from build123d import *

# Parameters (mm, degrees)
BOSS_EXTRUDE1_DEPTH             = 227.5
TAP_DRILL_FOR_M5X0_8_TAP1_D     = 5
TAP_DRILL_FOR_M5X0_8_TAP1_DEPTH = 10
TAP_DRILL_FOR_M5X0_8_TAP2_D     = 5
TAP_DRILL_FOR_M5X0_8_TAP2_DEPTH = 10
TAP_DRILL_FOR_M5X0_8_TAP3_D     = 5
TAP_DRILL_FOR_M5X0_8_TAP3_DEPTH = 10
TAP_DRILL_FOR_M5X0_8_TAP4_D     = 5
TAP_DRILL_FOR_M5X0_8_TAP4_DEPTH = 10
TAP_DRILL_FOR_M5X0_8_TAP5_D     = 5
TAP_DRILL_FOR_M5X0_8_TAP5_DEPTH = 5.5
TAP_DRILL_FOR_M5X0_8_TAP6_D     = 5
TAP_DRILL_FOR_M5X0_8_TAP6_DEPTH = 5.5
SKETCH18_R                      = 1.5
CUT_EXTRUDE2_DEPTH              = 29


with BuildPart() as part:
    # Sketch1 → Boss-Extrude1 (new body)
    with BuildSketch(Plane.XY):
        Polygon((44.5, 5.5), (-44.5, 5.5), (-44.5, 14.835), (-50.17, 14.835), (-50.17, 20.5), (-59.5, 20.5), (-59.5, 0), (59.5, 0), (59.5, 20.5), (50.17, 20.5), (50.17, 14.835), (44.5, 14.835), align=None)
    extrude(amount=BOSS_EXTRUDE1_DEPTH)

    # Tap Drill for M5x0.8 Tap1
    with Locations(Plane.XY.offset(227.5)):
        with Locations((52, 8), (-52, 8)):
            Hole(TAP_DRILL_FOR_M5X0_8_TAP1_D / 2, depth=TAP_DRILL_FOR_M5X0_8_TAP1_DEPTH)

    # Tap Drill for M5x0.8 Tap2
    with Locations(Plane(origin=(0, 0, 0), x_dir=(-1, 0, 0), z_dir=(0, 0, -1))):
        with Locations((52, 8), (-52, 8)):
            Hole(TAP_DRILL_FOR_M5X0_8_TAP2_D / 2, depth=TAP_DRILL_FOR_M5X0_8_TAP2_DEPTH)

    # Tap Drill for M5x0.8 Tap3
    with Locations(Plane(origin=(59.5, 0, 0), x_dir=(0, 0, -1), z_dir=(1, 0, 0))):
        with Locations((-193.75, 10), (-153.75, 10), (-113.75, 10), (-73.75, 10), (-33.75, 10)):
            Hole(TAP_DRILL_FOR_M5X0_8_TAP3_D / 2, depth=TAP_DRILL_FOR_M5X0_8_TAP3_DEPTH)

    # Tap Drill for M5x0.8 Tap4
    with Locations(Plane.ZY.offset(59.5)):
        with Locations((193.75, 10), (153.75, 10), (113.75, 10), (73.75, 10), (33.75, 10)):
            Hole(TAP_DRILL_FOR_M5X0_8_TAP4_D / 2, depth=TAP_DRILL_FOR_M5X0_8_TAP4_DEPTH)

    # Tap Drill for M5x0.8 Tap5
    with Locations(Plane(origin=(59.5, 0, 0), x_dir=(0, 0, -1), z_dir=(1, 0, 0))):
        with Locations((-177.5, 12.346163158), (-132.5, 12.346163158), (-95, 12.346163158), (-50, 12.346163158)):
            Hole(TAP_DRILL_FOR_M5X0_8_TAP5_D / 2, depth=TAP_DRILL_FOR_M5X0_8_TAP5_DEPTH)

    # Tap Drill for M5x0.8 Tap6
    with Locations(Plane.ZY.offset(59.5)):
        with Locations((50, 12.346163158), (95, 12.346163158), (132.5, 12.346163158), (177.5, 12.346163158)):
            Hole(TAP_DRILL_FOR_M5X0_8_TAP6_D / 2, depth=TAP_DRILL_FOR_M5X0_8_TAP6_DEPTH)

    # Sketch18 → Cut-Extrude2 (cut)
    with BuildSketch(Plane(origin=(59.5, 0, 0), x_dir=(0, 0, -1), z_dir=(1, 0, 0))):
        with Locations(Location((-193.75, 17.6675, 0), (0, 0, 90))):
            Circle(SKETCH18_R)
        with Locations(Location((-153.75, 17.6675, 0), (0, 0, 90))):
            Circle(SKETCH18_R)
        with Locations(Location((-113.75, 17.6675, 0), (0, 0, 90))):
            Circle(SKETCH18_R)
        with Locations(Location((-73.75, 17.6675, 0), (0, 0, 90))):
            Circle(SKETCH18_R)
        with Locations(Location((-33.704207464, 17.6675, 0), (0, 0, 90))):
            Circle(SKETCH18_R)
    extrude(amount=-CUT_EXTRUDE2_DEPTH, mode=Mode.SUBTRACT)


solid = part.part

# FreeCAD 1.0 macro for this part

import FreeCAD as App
import Part
import Sketcher

V = App.Vector


def add_polygon(sketch, points):
    """Adds a closed chain of lines whose ends are joined by coincident constraints."""
    first, n = sketch.GeometryCount, len(points)
    for a, b in zip(points, points[1:] + points[:1]):
        sketch.addGeometry(Part.LineSegment(App.Vector(*a, 0), App.Vector(*b, 0)), False)
    for i in range(n):
        sketch.addConstraint(Sketcher.Constraint("Coincident", first + i, 2, first + (i + 1) % n, 1))

doc = App.newDocument("Part")
body = doc.addObject("PartDesign::Body", "Body")

# Sketch on XY plane
sketch1 = doc.addObject("Sketcher::SketchObject", "Sketch")
body.addObject(sketch1)
sketch1.AttachmentSupport = (doc.XY_Plane, [""])
sketch1.MapMode = "FlatFace"
add_polygon(sketch1, [(44, 6), (-44, 6), (-44, 15), (-50, 15), (-50, 20), (-60, 20), (-60, 0), (60, 0), (60, 20), (50, 20), (50, 15), (44, 15)])  # lines 0-11
sketch1.addConstraint(Sketcher.Constraint("Horizontal", 0))
sketch1.addConstraint(Sketcher.Constraint("Vertical", 1))
sketch1.addConstraint(Sketcher.Constraint("Horizontal", 2))
sketch1.addConstraint(Sketcher.Constraint("Vertical", 3))
sketch1.addConstraint(Sketcher.Constraint("Horizontal", 4))
sketch1.addConstraint(Sketcher.Constraint("Vertical", 5))
sketch1.addConstraint(Sketcher.Constraint("Horizontal", 6))
sketch1.addConstraint(Sketcher.Constraint("Vertical", 7))
sketch1.addConstraint(Sketcher.Constraint("Horizontal", 8))
sketch1.addConstraint(Sketcher.Constraint("Vertical", 9))
sketch1.addConstraint(Sketcher.Constraint("Horizontal", 10))
sketch1.addConstraint(Sketcher.Constraint("Vertical", 11))
sketch1.addConstraint(Sketcher.Constraint("Symmetric", 5, 2, 6, 2, -1, 1))
sketch1.addConstraint(Sketcher.Constraint("Symmetric", 3, 2, 8, 2, -2))
sketch1.addConstraint(Sketcher.Constraint("Symmetric", 1, 2, 10, 2, -2))
sketch1.addConstraint(Sketcher.Constraint("DistanceX", 0, 2, 0, 1, 89.0))
sketch1.addConstraint(Sketcher.Constraint("DistanceX", 6, 1, 6, 2, 119.0))
sketch1.addConstraint(Sketcher.Constraint("DistanceY", 5, 2, 5, 1, 20.5))
sketch1.addConstraint(Sketcher.Constraint("DistanceY", 0, 2, 3, 2, 15.0))
sketch1.addConstraint(Sketcher.Constraint("DistanceX", 2, 2, 2, 1, 5.67))
sketch1.addConstraint(Sketcher.Constraint("DistanceY", 1, 1, 1, 2, 9.335))
pad1 = doc.addObject("PartDesign::Pad", "Pad")
body.addObject(pad1)
pad1.Profile = sketch1
pad1.Length = 227.5

# Sketch on XY plane
sketch2 = doc.addObject("Sketcher::SketchObject", "Sketch001")
body.addObject(sketch2)
sketch2.AttachmentSupport = (doc.XY_Plane, [""])
sketch2.MapMode = "FlatFace"
sketch2.AttachmentOffset = App.Placement(V(0, 0, 227.5), App.Rotation())
sketch2.addGeometry(Part.Circle(V(52, 8, 0), V(0, 0, 1), 2.5), False)
sketch2.addGeometry(Part.Circle(V(-52, 8, 0), V(0, 0, 1), 2.5), False)
sketch2.addConstraint(Sketcher.Constraint("Equal", 0, 1))
sketch2.addConstraint(Sketcher.Constraint("Symmetric", 0, 3, 1, 3, -2))
sketch2.addConstraint(Sketcher.Constraint("Diameter", 0, 5.0))
sketch2.addConstraint(Sketcher.Constraint("DistanceX", -1, 1, 0, 3, 52.0))
sketch2.addConstraint(Sketcher.Constraint("DistanceY", -1, 1, 0, 3, 8.0))
doc.recompute()
hole = doc.addObject("PartDesign::Hole", "Hole")
body.addObject(hole)
hole.Profile = sketch2
hole.ThreadType = "None"
hole.Diameter = 5
hole.DepthType = "Dimension"
hole.Depth = 10
hole.DrillPoint = "Flat"

# Sketch on XY plane
sketch3 = doc.addObject("Sketcher::SketchObject", "Sketch002")
body.addObject(sketch3)
sketch3.AttachmentSupport = (doc.XY_Plane, [""])
sketch3.MapMode = "FlatFace"
sketch3.addGeometry(Part.Circle(V(-52, 8, 0), V(0, 0, 1), 2.5), False)
sketch3.addGeometry(Part.Circle(V(52, 8, 0), V(0, 0, 1), 2.5), False)
sketch3.addConstraint(Sketcher.Constraint("Equal", 0, 1))
sketch3.addConstraint(Sketcher.Constraint("Symmetric", 0, 3, 1, 3, -2))
sketch3.addConstraint(Sketcher.Constraint("Diameter", 0, 5.0))
sketch3.addConstraint(Sketcher.Constraint("DistanceX", 0, 3, -1, 1, 52.0))
sketch3.addConstraint(Sketcher.Constraint("DistanceY", -1, 1, 0, 3, 8.0))
doc.recompute()
hole2 = doc.addObject("PartDesign::Hole", "Hole001")
body.addObject(hole2)
hole2.Profile = sketch3
hole2.ThreadType = "None"
hole2.Diameter = 5
hole2.DepthType = "Dimension"
hole2.Depth = 10
hole2.DrillPoint = "Flat"
hole2.Reversed = True

# Sketch on YZ plane
sketch4 = doc.addObject("Sketcher::SketchObject", "Sketch003")
body.addObject(sketch4)
sketch4.AttachmentSupport = (doc.YZ_Plane, [""])
sketch4.MapMode = "FlatFace"
sketch4.AttachmentOffset = App.Placement(V(0, 0, 59.5), App.Rotation())
sketch4.addGeometry(Part.Circle(V(10, 193.8, 0), V(0, 0, 1), 2.5), False)
sketch4.addGeometry(Part.Circle(V(10, 153.8, 0), V(0, 0, 1), 2.5), False)
sketch4.addGeometry(Part.Circle(V(10, 113.8, 0), V(0, 0, 1), 2.5), False)
sketch4.addGeometry(Part.Circle(V(10, 73.8, 0), V(0, 0, 1), 2.5), False)
sketch4.addGeometry(Part.Circle(V(10, 33.8, 0), V(0, 0, 1), 2.5), False)
sketch4.addConstraint(Sketcher.Constraint("Equal", 0, 1))
sketch4.addConstraint(Sketcher.Constraint("Equal", 1, 2))
sketch4.addConstraint(Sketcher.Constraint("Equal", 2, 3))
sketch4.addConstraint(Sketcher.Constraint("Equal", 3, 4))
sketch4.addConstraint(Sketcher.Constraint("Vertical", 0, 3, 1, 3))
sketch4.addConstraint(Sketcher.Constraint("Vertical", 1, 3, 2, 3))
sketch4.addConstraint(Sketcher.Constraint("Vertical", 2, 3, 3, 3))
sketch4.addConstraint(Sketcher.Constraint("Vertical", 3, 3, 4, 3))
sketch4.addConstraint(Sketcher.Constraint("Diameter", 0, 5.0))
sketch4.addConstraint(Sketcher.Constraint("DistanceX", -1, 1, 0, 3, 10.0))
sketch4.addConstraint(Sketcher.Constraint("DistanceY", 1, 3, 0, 3, 40.0))
sketch4.addConstraint(Sketcher.Constraint("DistanceY", 2, 3, 1, 3, 40.0))
sketch4.addConstraint(Sketcher.Constraint("DistanceY", 3, 3, 2, 3, 40.0))
sketch4.addConstraint(Sketcher.Constraint("DistanceY", 4, 3, 3, 3, 40.0))
sketch4.addConstraint(Sketcher.Constraint("DistanceY", -1, 1, 0, 3, 193.75))
doc.recompute()
hole3 = doc.addObject("PartDesign::Hole", "Hole002")
body.addObject(hole3)
hole3.Profile = sketch4
hole3.ThreadType = "None"
hole3.Diameter = 5
hole3.DepthType = "Dimension"
hole3.Depth = 10
hole3.DrillPoint = "Flat"

# Sketch on YZ plane
sketch5 = doc.addObject("Sketcher::SketchObject", "Sketch004")
body.addObject(sketch5)
sketch5.AttachmentSupport = (doc.YZ_Plane, [""])
sketch5.MapMode = "FlatFace"
sketch5.AttachmentOffset = App.Placement(V(0, 0, -59.5), App.Rotation())
sketch5.addGeometry(Part.Circle(V(10, 193.8, 0), V(0, 0, 1), 2.5), False)
sketch5.addGeometry(Part.Circle(V(10, 153.8, 0), V(0, 0, 1), 2.5), False)
sketch5.addGeometry(Part.Circle(V(10, 113.8, 0), V(0, 0, 1), 2.5), False)
sketch5.addGeometry(Part.Circle(V(10, 73.8, 0), V(0, 0, 1), 2.5), False)
sketch5.addGeometry(Part.Circle(V(10, 33.8, 0), V(0, 0, 1), 2.5), False)
sketch5.addConstraint(Sketcher.Constraint("Equal", 0, 1))
sketch5.addConstraint(Sketcher.Constraint("Equal", 1, 2))
sketch5.addConstraint(Sketcher.Constraint("Equal", 2, 3))
sketch5.addConstraint(Sketcher.Constraint("Equal", 3, 4))
sketch5.addConstraint(Sketcher.Constraint("Vertical", 0, 3, 1, 3))
sketch5.addConstraint(Sketcher.Constraint("Vertical", 1, 3, 2, 3))
sketch5.addConstraint(Sketcher.Constraint("Vertical", 2, 3, 3, 3))
sketch5.addConstraint(Sketcher.Constraint("Vertical", 3, 3, 4, 3))
sketch5.addConstraint(Sketcher.Constraint("Diameter", 0, 5.0))
sketch5.addConstraint(Sketcher.Constraint("DistanceX", -1, 1, 0, 3, 10.0))
sketch5.addConstraint(Sketcher.Constraint("DistanceY", 1, 3, 0, 3, 40.0))
sketch5.addConstraint(Sketcher.Constraint("DistanceY", 2, 3, 1, 3, 40.0))
sketch5.addConstraint(Sketcher.Constraint("DistanceY", 3, 3, 2, 3, 40.0))
sketch5.addConstraint(Sketcher.Constraint("DistanceY", 4, 3, 3, 3, 40.0))
sketch5.addConstraint(Sketcher.Constraint("DistanceY", -1, 1, 0, 3, 193.75))
doc.recompute()
hole4 = doc.addObject("PartDesign::Hole", "Hole003")
body.addObject(hole4)
hole4.Profile = sketch5
hole4.ThreadType = "None"
hole4.Diameter = 5
hole4.DepthType = "Dimension"
hole4.Depth = 10
hole4.DrillPoint = "Flat"
hole4.Reversed = True

# Sketch on YZ plane
sketch6 = doc.addObject("Sketcher::SketchObject", "Sketch005")
body.addObject(sketch6)
sketch6.AttachmentSupport = (doc.YZ_Plane, [""])
sketch6.MapMode = "FlatFace"
sketch6.AttachmentOffset = App.Placement(V(0, 0, 59.5), App.Rotation())
sketch6.addGeometry(Part.Circle(V(12.3, 177.5, 0), V(0, 0, 1), 2.5), False)
sketch6.addGeometry(Part.Circle(V(12.3, 132.5, 0), V(0, 0, 1), 2.5), False)
sketch6.addGeometry(Part.Circle(V(12.3, 95, 0), V(0, 0, 1), 2.5), False)
sketch6.addGeometry(Part.Circle(V(12.3, 50, 0), V(0, 0, 1), 2.5), False)
sketch6.addConstraint(Sketcher.Constraint("Equal", 0, 1))
sketch6.addConstraint(Sketcher.Constraint("Equal", 1, 2))
sketch6.addConstraint(Sketcher.Constraint("Equal", 2, 3))
sketch6.addConstraint(Sketcher.Constraint("Vertical", 0, 3, 1, 3))
sketch6.addConstraint(Sketcher.Constraint("Vertical", 1, 3, 2, 3))
sketch6.addConstraint(Sketcher.Constraint("Vertical", 2, 3, 3, 3))
sketch6.addConstraint(Sketcher.Constraint("Diameter", 0, 5.0))
sketch6.addConstraint(Sketcher.Constraint("DistanceY", -1, 1, 2, 3, 95.0))
sketch6.addConstraint(Sketcher.Constraint("DistanceY", -1, 1, 3, 3, 50.0))
sketch6.addConstraint(Sketcher.Constraint("DistanceY", 1, 3, 0, 3, 45.0))
sketch6.addConstraint(Sketcher.Constraint("DistanceY", -1, 1, 0, 3, 177.5))
sketch6.addConstraint(Sketcher.Constraint("DistanceX", -1, 1, 0, 3, 12.346163))
doc.recompute()
hole5 = doc.addObject("PartDesign::Hole", "Hole004")
body.addObject(hole5)
hole5.Profile = sketch6
hole5.ThreadType = "None"
hole5.Diameter = 5
hole5.DepthType = "Dimension"
hole5.Depth = 5.5
hole5.DrillPoint = "Flat"

# Sketch on YZ plane
sketch7 = doc.addObject("Sketcher::SketchObject", "Sketch006")
body.addObject(sketch7)
sketch7.AttachmentSupport = (doc.YZ_Plane, [""])
sketch7.MapMode = "FlatFace"
sketch7.AttachmentOffset = App.Placement(V(0, 0, -59.5), App.Rotation())
sketch7.addGeometry(Part.Circle(V(12.3, 50, 0), V(0, 0, 1), 2.5), False)
sketch7.addGeometry(Part.Circle(V(12.3, 95, 0), V(0, 0, 1), 2.5), False)
sketch7.addGeometry(Part.Circle(V(12.3, 132.5, 0), V(0, 0, 1), 2.5), False)
sketch7.addGeometry(Part.Circle(V(12.3, 177.5, 0), V(0, 0, 1), 2.5), False)
sketch7.addConstraint(Sketcher.Constraint("Equal", 0, 1))
sketch7.addConstraint(Sketcher.Constraint("Equal", 1, 2))
sketch7.addConstraint(Sketcher.Constraint("Equal", 2, 3))
sketch7.addConstraint(Sketcher.Constraint("Vertical", 0, 3, 1, 3))
sketch7.addConstraint(Sketcher.Constraint("Vertical", 1, 3, 2, 3))
sketch7.addConstraint(Sketcher.Constraint("Vertical", 2, 3, 3, 3))
sketch7.addConstraint(Sketcher.Constraint("Diameter", 0, 5.0))
sketch7.addConstraint(Sketcher.Constraint("DistanceY", -1, 1, 0, 3, 50.0))
sketch7.addConstraint(Sketcher.Constraint("DistanceY", -1, 1, 1, 3, 95.0))
sketch7.addConstraint(Sketcher.Constraint("DistanceY", 2, 3, 3, 3, 45.0))
sketch7.addConstraint(Sketcher.Constraint("DistanceY", -1, 1, 2, 3, 132.5))
sketch7.addConstraint(Sketcher.Constraint("DistanceX", -1, 1, 0, 3, 12.346163))
doc.recompute()
hole6 = doc.addObject("PartDesign::Hole", "Hole005")
body.addObject(hole6)
hole6.Profile = sketch7
hole6.ThreadType = "None"
hole6.Diameter = 5
hole6.DepthType = "Dimension"
hole6.Depth = 5.5
hole6.DrillPoint = "Flat"
hole6.Reversed = True

# Sketch on YZ plane
sketch8 = doc.addObject("Sketcher::SketchObject", "Sketch007")
body.addObject(sketch8)
sketch8.AttachmentSupport = (doc.YZ_Plane, [""])
sketch8.MapMode = "FlatFace"
sketch8.AttachmentOffset = App.Placement(V(0, 0, 59.5), App.Rotation())
sketch8.addGeometry(Part.Circle(V(17.7, 193.8, 0), V(0, 0, 1), 1.5), False)
sketch8.addGeometry(Part.Circle(V(17.7, 153.8, 0), V(0, 0, 1), 1.5), False)
sketch8.addGeometry(Part.Circle(V(17.7, 113.8, 0), V(0, 0, 1), 1.5), False)
sketch8.addGeometry(Part.Circle(V(17.7, 73.8, 0), V(0, 0, 1), 1.5), False)
sketch8.addGeometry(Part.Circle(V(17.7, 33.7, 0), V(0, 0, 1), 1.5), False)
sketch8.addConstraint(Sketcher.Constraint("Equal", 0, 1))
sketch8.addConstraint(Sketcher.Constraint("Equal", 1, 2))
sketch8.addConstraint(Sketcher.Constraint("Equal", 2, 3))
sketch8.addConstraint(Sketcher.Constraint("Equal", 3, 4))
sketch8.addConstraint(Sketcher.Constraint("Vertical", 0, 3, 1, 3))
sketch8.addConstraint(Sketcher.Constraint("Vertical", 1, 3, 2, 3))
sketch8.addConstraint(Sketcher.Constraint("Vertical", 2, 3, 3, 3))
sketch8.addConstraint(Sketcher.Constraint("Vertical", 3, 3, 4, 3))
sketch8.addConstraint(Sketcher.Constraint("Diameter", 0, 3.0))
sketch8.addConstraint(Sketcher.Constraint("DistanceY", 1, 3, 0, 3, 40.0))
sketch8.addConstraint(Sketcher.Constraint("DistanceY", 2, 3, 1, 3, 40.0))
sketch8.addConstraint(Sketcher.Constraint("DistanceY", 3, 3, 2, 3, 40.0))
sketch8.addConstraint(Sketcher.Constraint("DistanceY", -1, 1, 0, 3, 193.75))
sketch8.addConstraint(Sketcher.Constraint("DistanceX", -1, 1, 0, 3, 17.6675))
sketch8.addConstraint(Sketcher.Constraint("DistanceY", -1, 1, 4, 3, 33.704207))
pocket1 = doc.addObject("PartDesign::Pocket", "Pocket")
body.addObject(pocket1)
pocket1.Profile = sketch8
pocket1.Length = 29

doc.recompute()
